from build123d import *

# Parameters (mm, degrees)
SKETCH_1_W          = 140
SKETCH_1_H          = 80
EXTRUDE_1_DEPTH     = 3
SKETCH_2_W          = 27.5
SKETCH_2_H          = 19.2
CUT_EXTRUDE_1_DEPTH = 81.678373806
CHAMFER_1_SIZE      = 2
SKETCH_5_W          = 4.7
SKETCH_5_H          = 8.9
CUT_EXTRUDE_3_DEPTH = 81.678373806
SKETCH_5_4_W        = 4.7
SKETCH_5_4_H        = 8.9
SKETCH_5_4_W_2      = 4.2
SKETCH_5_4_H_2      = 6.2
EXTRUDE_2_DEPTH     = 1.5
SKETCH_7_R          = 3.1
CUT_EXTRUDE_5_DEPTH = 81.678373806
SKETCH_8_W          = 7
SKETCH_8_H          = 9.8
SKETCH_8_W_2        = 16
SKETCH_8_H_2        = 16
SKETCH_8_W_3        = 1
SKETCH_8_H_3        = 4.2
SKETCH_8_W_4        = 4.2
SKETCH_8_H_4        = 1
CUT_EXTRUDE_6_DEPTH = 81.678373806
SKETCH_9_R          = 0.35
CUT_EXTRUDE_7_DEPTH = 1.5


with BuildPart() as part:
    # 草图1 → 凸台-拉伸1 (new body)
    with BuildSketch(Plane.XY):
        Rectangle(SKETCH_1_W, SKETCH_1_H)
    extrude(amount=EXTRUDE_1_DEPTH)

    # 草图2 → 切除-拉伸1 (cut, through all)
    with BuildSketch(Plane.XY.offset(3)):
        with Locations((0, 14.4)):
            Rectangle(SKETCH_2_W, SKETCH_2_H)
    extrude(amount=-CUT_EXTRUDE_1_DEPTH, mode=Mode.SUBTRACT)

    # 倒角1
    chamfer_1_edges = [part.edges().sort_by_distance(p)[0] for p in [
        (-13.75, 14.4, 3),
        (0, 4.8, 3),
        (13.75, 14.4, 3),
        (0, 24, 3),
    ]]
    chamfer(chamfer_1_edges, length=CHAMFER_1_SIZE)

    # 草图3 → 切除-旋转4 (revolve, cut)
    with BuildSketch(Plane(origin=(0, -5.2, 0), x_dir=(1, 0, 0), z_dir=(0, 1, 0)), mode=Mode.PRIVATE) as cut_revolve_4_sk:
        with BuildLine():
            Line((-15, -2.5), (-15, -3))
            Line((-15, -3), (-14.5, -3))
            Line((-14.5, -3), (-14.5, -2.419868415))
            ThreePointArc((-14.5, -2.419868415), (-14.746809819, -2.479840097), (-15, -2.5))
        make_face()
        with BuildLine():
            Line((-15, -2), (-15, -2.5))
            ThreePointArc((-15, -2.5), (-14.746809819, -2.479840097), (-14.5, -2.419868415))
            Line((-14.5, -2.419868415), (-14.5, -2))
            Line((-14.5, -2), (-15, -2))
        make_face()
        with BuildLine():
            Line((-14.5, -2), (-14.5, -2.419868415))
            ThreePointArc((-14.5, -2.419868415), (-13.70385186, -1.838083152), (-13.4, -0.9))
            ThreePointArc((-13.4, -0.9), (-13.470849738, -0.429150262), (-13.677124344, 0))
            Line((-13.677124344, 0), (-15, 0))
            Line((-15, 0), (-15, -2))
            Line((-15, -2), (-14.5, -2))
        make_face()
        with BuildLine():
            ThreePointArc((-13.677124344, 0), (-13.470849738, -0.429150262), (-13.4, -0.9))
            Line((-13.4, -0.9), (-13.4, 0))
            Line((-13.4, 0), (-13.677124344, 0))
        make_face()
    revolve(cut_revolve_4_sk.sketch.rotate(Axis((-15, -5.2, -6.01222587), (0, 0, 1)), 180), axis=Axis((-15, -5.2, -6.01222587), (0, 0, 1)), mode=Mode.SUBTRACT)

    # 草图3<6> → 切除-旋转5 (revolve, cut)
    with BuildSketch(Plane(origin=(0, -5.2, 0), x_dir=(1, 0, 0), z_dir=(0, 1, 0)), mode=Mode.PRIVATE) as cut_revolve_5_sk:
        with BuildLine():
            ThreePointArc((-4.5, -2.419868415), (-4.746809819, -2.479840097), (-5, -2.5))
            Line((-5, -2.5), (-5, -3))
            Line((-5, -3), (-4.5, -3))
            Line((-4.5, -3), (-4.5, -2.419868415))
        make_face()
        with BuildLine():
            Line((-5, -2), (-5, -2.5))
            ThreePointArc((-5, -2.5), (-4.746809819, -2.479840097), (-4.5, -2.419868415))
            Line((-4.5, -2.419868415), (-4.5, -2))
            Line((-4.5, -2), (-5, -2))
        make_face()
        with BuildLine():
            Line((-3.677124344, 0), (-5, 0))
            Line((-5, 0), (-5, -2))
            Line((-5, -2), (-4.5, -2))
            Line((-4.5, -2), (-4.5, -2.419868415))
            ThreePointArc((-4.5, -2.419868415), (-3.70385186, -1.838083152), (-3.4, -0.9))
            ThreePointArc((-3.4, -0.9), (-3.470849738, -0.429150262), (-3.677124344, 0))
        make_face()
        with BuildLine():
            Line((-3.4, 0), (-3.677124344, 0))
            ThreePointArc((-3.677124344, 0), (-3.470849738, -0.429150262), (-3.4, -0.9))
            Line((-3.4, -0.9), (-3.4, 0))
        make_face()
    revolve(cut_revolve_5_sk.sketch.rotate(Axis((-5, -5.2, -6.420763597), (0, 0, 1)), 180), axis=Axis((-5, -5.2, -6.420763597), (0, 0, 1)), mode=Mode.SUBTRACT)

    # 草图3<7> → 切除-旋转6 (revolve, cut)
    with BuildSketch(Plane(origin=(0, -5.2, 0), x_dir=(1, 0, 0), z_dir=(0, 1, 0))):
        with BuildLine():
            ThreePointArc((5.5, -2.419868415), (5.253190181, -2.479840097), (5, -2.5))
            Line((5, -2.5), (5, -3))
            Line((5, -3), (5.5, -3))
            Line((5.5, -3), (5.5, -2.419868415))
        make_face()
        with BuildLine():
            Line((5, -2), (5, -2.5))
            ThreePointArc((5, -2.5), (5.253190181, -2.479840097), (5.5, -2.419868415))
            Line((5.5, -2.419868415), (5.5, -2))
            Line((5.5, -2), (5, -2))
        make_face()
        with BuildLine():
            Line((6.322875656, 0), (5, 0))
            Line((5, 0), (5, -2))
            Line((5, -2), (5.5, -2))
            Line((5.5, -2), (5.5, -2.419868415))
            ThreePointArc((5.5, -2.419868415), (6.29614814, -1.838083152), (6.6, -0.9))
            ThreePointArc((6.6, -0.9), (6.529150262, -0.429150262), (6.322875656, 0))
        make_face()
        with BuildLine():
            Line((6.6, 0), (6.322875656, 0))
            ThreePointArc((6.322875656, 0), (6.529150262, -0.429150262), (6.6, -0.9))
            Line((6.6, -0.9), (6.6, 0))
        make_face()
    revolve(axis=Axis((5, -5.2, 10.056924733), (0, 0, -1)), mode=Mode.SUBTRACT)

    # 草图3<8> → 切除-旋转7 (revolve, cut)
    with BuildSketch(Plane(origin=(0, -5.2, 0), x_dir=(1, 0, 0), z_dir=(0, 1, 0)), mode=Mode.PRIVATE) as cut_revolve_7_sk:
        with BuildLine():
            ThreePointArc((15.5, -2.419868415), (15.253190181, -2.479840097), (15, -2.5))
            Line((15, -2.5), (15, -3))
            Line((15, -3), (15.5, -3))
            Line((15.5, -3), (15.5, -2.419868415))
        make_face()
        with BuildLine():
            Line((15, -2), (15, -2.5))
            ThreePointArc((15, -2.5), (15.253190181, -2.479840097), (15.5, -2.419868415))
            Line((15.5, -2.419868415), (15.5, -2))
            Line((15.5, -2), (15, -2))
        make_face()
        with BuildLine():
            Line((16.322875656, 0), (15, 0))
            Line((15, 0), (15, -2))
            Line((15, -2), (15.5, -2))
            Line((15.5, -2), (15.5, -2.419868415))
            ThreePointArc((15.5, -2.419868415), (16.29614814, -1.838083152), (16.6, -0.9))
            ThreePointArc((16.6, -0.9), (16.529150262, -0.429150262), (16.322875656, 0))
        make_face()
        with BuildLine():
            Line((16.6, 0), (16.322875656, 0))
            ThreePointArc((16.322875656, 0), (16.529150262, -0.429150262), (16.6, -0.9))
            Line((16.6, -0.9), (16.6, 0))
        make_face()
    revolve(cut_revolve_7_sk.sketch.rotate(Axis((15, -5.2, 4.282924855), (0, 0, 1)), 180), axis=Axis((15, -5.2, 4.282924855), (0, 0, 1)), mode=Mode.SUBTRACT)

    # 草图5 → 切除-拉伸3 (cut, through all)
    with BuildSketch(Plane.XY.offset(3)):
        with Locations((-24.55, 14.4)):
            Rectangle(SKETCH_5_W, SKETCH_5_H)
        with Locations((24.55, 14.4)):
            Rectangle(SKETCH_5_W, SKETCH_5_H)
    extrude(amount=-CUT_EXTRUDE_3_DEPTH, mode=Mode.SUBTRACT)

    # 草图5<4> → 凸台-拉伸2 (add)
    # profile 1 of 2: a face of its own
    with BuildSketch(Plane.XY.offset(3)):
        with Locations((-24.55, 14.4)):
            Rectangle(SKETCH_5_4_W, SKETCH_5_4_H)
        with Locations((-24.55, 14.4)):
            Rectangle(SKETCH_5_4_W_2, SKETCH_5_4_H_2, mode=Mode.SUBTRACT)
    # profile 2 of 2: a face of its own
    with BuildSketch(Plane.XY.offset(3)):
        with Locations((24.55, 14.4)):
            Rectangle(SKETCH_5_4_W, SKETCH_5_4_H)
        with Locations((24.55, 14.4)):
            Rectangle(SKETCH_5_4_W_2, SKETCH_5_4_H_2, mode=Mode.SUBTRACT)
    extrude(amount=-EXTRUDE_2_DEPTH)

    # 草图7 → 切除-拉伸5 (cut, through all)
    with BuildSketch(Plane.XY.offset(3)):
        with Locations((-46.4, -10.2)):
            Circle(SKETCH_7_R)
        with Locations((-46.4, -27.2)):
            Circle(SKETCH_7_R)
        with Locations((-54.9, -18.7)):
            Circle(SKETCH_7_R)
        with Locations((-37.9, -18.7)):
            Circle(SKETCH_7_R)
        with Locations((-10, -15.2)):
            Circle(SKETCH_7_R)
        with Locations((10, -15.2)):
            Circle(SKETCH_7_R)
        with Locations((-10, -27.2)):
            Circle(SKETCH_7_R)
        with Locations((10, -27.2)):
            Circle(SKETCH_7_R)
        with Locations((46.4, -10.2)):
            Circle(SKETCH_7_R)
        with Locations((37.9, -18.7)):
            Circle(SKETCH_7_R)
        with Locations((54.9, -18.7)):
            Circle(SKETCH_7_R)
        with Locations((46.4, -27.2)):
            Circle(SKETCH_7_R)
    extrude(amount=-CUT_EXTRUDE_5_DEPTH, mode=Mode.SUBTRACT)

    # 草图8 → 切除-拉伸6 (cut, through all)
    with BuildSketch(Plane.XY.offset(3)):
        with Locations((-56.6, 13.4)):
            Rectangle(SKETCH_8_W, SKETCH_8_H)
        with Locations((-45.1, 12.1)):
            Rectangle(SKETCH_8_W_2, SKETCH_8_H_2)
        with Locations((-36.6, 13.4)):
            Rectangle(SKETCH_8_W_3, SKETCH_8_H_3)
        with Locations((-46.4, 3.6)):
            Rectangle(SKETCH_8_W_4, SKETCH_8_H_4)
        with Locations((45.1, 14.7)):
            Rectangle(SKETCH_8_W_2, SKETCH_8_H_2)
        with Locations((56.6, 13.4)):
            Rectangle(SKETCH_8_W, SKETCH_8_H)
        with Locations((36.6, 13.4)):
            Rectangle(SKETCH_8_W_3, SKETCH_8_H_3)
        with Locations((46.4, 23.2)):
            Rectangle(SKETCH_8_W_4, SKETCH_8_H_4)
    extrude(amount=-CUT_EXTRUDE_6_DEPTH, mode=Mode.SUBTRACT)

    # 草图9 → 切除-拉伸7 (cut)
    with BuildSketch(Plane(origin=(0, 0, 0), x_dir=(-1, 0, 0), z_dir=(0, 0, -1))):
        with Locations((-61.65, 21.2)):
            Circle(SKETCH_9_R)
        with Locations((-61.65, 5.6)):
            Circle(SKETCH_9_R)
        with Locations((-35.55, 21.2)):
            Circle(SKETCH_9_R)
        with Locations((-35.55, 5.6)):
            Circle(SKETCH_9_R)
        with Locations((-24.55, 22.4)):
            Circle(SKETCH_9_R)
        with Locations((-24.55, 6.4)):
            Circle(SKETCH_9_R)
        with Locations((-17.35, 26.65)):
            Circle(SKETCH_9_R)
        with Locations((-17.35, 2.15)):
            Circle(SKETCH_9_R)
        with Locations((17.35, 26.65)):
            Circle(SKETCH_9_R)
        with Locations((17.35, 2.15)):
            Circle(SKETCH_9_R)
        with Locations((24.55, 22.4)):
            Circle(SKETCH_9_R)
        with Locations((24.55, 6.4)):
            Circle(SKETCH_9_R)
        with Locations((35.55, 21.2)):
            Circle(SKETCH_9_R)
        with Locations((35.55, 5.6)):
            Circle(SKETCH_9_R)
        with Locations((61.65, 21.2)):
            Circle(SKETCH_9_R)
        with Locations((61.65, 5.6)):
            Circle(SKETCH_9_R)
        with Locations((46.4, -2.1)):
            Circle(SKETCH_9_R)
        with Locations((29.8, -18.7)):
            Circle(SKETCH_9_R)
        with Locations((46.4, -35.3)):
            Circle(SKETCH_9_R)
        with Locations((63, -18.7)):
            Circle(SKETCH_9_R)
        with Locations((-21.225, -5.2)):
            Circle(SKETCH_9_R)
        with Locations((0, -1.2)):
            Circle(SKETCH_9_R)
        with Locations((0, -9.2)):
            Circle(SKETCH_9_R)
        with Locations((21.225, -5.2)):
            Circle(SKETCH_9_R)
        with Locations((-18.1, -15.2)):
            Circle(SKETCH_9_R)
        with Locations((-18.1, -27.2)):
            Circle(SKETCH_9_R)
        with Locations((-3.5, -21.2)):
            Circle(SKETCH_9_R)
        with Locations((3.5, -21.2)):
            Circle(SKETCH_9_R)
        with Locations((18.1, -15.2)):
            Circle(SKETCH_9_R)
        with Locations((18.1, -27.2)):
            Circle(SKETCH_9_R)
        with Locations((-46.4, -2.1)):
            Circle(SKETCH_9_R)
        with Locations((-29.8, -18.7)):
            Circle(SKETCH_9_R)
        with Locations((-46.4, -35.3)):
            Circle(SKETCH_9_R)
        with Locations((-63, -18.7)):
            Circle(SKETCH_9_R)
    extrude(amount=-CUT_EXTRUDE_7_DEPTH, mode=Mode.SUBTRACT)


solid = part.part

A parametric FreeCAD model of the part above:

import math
import FreeCAD as App
import Part
import Sketcher


def edges_at(feature, points):
    """Names of the edges that pass closest to the given points."""
    edges = feature.Shape.Edges
    near = lambda p: min(range(len(edges)), key=lambda i: edges[i].distToShape(Part.Vertex(*p))[0])
    return sorted({f"Edge{near(p) + 1}" for p in points})


def add_polygon(sketch, points):
    """Adds a closed chain of lines whose ends are joined by coincident constraints."""
    first, n = sketch.GeometryCount, len(points)
    for a, b in zip(points, points[1:] + points[:1]):
        sketch.addGeometry(Part.LineSegment(App.Vector(*a, 0), App.Vector(*b, 0)), False)
    for i in range(n):
        sketch.addConstraint(Sketcher.Constraint("Coincident", first + i, 2, first + (i + 1) % n, 1))

doc = App.newDocument("Part")
params = doc.addObject("Spreadsheet::Sheet", "Params")
for row, (alias, value) in enumerate([
    ("sketch1_width", "140 mm"),
    ("sketch1_height", "80 mm"),
    ("pad1_length", "3 mm"),
    ("sketch2_width", "27.5 mm"),
    ("sketch2_height", "19.2 mm"),
    ("chamfer_size", "2 mm"),
    ("sketch3_radius", "1.6 mm"),
    ("sketch3_height", "3 mm"),
    ("sketch3_width", "0.5 mm"),
    ("sketch3_height2", "0.9 mm"),
    ("groove_angle", "360 deg"),
    ("sketch4_radius", "1.6 mm"),
    ("sketch4_height", "3 mm"),
    ("sketch4_width", "0.5 mm"),
    ("sketch4_height2", "0.9 mm"),
    ("groove2_angle", "360 deg"),
    ("sketch5_radius", "1.6 mm"),
    ("sketch5_height", "3 mm"),
    ("sketch5_width", "0.5 mm"),
    ("sketch5_height2", "0.9 mm"),
    ("groove3_angle", "360 deg"),
    ("sketch6_radius", "1.6 mm"),
    ("sketch6_height", "3 mm"),
    ("sketch6_width", "0.5 mm"),
    ("sketch6_height2", "0.9 mm"),
    ("groove4_angle", "360 deg"),
    ("sketch7_width", "4.7 mm"),
    ("sketch7_height", "8.9 mm"),
    ("sketch8_width", "4.7 mm"),
    ("sketch8_width2", "4.2 mm"),
    ("sketch8_height", "8.9 mm"),
    ("sketch8_height2", "6.2 mm"),
    ("pad2_length", "1.5 mm"),
    ("sketch9_diameter", "6.2 mm"),
    ("sketch10_width", "7 mm"),
    ("sketch10_width2", "1 mm"),
    ("sketch10_width3", "16 mm"),
    ("sketch10_width4", "4.6 mm"),
    ("sketch10_width5", "4.2 mm"),
    ("sketch11_diameter", "0.7 mm"),
    ("pocket5_length", "1.5 mm"),
], start=1):
    params.set(f"A{row}", alias)
    params.set(f"B{row}", "=" + value)
    params.setAlias(f"B{row}", alias)

body = doc.addObject("PartDesign::Body", "Body")

# Sketch on XY plane
sketch1 = body.newObject("Sketcher::SketchObject", "Sketch")
sketch1.AttachmentSupport = (doc.getObject("XY_Plane"), [""])
sketch1.MapMode = "FlatFace"
add_polygon(sketch1, [(-70, 40), (-70, -40), (70, -40), (70, 40)])  # lines 0-3
sketch1.addConstraint([
    Sketcher.Constraint("Vertical", 0),
    Sketcher.Constraint("Horizontal", 1),
    Sketcher.Constraint("Vertical", 2),
    Sketcher.Constraint("Horizontal", 3),
    Sketcher.Constraint("Symmetric", 0, 2, 2, 2, -1, 1),
    Sketcher.Constraint("DistanceX", 1, 1, 1, 2, 140.0),
    Sketcher.Constraint("DistanceY", 0, 2, 0, 1, 80.0),
])
sketch1.setExpression("Constraints[9]", "Params.sketch1_width")
sketch1.setExpression("Constraints[10]", "Params.sketch1_height")
pad1 = body.newObject("PartDesign::Pad", "Pad")
pad1.Profile = sketch1
pad1.setExpression("Length", "Params.pad1_length")

# Sketch on XY plane
sketch2 = body.newObject("Sketcher::SketchObject", "Sketch001")
sketch2.AttachmentSupport = (doc.getObject("XY_Plane"), [""])
sketch2.MapMode = "FlatFace"
sketch2.AttachmentOffset = App.Placement(App.Vector(0, 0, 3), App.Rotation())
add_polygon(sketch2, [(-14, 24), (-14, 5), (14, 5), (14, 24)])  # lines 0-3
sketch2.addConstraint([
    Sketcher.Constraint("Vertical", 0),
    Sketcher.Constraint("Horizontal", 1),
    Sketcher.Constraint("Vertical", 2),
    Sketcher.Constraint("Horizontal", 3),
    Sketcher.Constraint("DistanceX", 1, 1, 1, 2, 27.5),
    Sketcher.Constraint("DistanceY", 0, 2, 0, 1, 19.2),
    Sketcher.Constraint("DistanceY", -1, 1, 2, 2, 24.0),
    Sketcher.Constraint("DistanceX", 0, 2, -1, 1, 13.75),
])
sketch2.setExpression("Constraints[8]", "Params.sketch2_width")
sketch2.setExpression("Constraints[9]", "Params.sketch2_height")
pocket1 = body.newObject("PartDesign::Pocket", "Pocket")
pocket1.Profile = sketch2
pocket1.Type = "ThroughAll"
doc.recompute()

chamfer = body.newObject("PartDesign::Chamfer", "Chamfer")
chamfer.Base = (pocket1, edges_at(pocket1, [
    (-13.75, 14.4, 3),
    (0, 4.8, 3),
    (13.75, 14.4, 3),
    (0, 24, 3),
]))
chamfer.setExpression("Size", "Params.chamfer_size")

# Sketch on XZ plane
sketch3 = body.newObject("Sketcher::SketchObject", "Sketch002")
sketch3.AttachmentSupport = (doc.getObject("XZ_Plane"), [""])
sketch3.MapMode = "FlatFace"
sketch3.AttachmentOffset = App.Placement(App.Vector(0, 0, 5.2), App.Rotation())
sketch3.addGeometry([
    Part.LineSegment(App.Vector(-15, 3, 0), App.Vector(-14.5, 3, 0)),  # 0
    Part.LineSegment(App.Vector(-14.5, 3, 0), App.Vector(-14.5, 2.4, 0)),  # 1
    Part.ArcOfCircle(Part.Circle(App.Vector(-15, 0.9, 0), App.Vector(0, 0, 1), 1.6), math.radians(0), math.radians(72)),  # 2
    Part.LineSegment(App.Vector(-13.4, 0.9, 0), App.Vector(-13.4, 0, 0)),  # 3
    Part.LineSegment(App.Vector(-13.4, 0, 0), App.Vector(-15, 0, 0)),  # 4
    Part.LineSegment(App.Vector(-15, 0, 0), App.Vector(-15, 3, 0)),  # 5
], False)
sketch3.addGeometry(Part.LineSegment(App.Vector(-15, 0, 0), App.Vector(-15, 3, 0)), True)  # axis
sketch3.addConstraint([
    Sketcher.Constraint("Coincident", 0, 2, 1, 1),
    Sketcher.Constraint("Coincident", 1, 2, 2, 2),
    Sketcher.Constraint("Tangent", 2, 1, 3, 1),
    Sketcher.Constraint("Coincident", 3, 2, 4, 1),
    Sketcher.Constraint("Coincident", 4, 2, 5, 1),
    Sketcher.Constraint("Coincident", 5, 2, 0, 1),
    Sketcher.Constraint("Horizontal", 0),
    Sketcher.Constraint("Vertical", 1),
    Sketcher.Constraint("Vertical", 3),
    Sketcher.Constraint("Horizontal", 4),
    Sketcher.Constraint("Vertical", 5),
    Sketcher.Constraint("Vertical", 6),
    Sketcher.Constraint("Coincident", 6, 1, 4, 2),
    Sketcher.Constraint("PointOnObject", 3, 2, -1),
    Sketcher.Constraint("Horizontal", 0, 2, 6, 2),
    Sketcher.Constraint("Vertical", 2, 3, 4, 2),
    Sketcher.Constraint("Radius", 2, 1.6),
    Sketcher.Constraint("DistanceY", 5, 1, 5, 2, 3.0),
    Sketcher.Constraint("DistanceX", 0, 1, 0, 2, 0.5),
    Sketcher.Constraint("DistanceY", 3, 2, 3, 1, 0.9),
    Sketcher.Constraint("DistanceX", 2, 3, -1, 1, 15.0),
])
sketch3.setExpression("Constraints[16]", "Params.sketch3_radius")
sketch3.setExpression("Constraints[17]", "Params.sketch3_height")
sketch3.setExpression("Constraints[18]", "Params.sketch3_width")
sketch3.setExpression("Constraints[19]", "Params.sketch3_height2")
groove = body.newObject("PartDesign::Groove", "Groove")
groove.Profile = sketch3
groove.ReferenceAxis = (sketch3, ["Axis0"])
groove.setExpression("Angle", "Params.groove_angle")

# Sketch on XZ plane
sketch4 = body.newObject("Sketcher::SketchObject", "Sketch003")
sketch4.AttachmentSupport = (doc.getObject("XZ_Plane"), [""])
sketch4.MapMode = "FlatFace"
sketch4.AttachmentOffset = App.Placement(App.Vector(0, 0, 5.2), App.Rotation())
sketch4.addGeometry([
    Part.LineSegment(App.Vector(-5, 3, 0), App.Vector(-4.5, 3, 0)),  # 0
    Part.LineSegment(App.Vector(-4.5, 3, 0), App.Vector(-4.5, 2.4, 0)),  # 1
    Part.ArcOfCircle(Part.Circle(App.Vector(-5, 0.9, 0), App.Vector(0, 0, 1), 1.6), math.radians(0), math.radians(72)),  # 2
    Part.LineSegment(App.Vector(-3.4, 0.9, 0), App.Vector(-3.4, 0, 0)),  # 3
    Part.LineSegment(App.Vector(-3.4, 0, 0), App.Vector(-5, 0, 0)),  # 4
    Part.LineSegment(App.Vector(-5, 0, 0), App.Vector(-5, 3, 0)),  # 5
], False)
sketch4.addGeometry(Part.LineSegment(App.Vector(-5, 0, 0), App.Vector(-5, 3, 0)), True)  # axis
sketch4.addConstraint([
    Sketcher.Constraint("Coincident", 0, 2, 1, 1),
    Sketcher.Constraint("Coincident", 1, 2, 2, 2),
    Sketcher.Constraint("Tangent", 2, 1, 3, 1),
    Sketcher.Constraint("Coincident", 3, 2, 4, 1),
    Sketcher.Constraint("Coincident", 4, 2, 5, 1),
    Sketcher.Constraint("Coincident", 5, 2, 0, 1),
    Sketcher.Constraint("Horizontal", 0),
    Sketcher.Constraint("Vertical", 1),
    Sketcher.Constraint("Vertical", 3),
    Sketcher.Constraint("Horizontal", 4),
    Sketcher.Constraint("Vertical", 5),
    Sketcher.Constraint("Vertical", 6),
    Sketcher.Constraint("Coincident", 6, 1, 4, 2),
    Sketcher.Constraint("PointOnObject", 3, 2, -1),
    Sketcher.Constraint("Horizontal", 0, 2, 6, 2),
    Sketcher.Constraint("Vertical", 2, 3, 4, 2),
    Sketcher.Constraint("Radius", 2, 1.6),
    Sketcher.Constraint("DistanceY", 5, 1, 5, 2, 3.0),
    Sketcher.Constraint("DistanceX", 0, 1, 0, 2, 0.5),
    Sketcher.Constraint("DistanceY", 3, 2, 3, 1, 0.9),
    Sketcher.Constraint("DistanceX", 2, 3, -1, 1, 5.0),
])
sketch4.setExpression("Constraints[16]", "Params.sketch4_radius")
sketch4.setExpression("Constraints[17]", "Params.sketch4_height")
sketch4.setExpression("Constraints[18]", "Params.sketch4_width")
sketch4.setExpression("Constraints[19]", "Params.sketch4_height2")
groove2 = body.newObject("PartDesign::Groove", "Groove001")
groove2.Profile = sketch4
groove2.ReferenceAxis = (sketch4, ["Axis0"])
groove2.setExpression("Angle", "Params.groove2_angle")

# Sketch on XZ plane
sketch5 = body.newObject("Sketcher::SketchObject", "Sketch004")
sketch5.AttachmentSupport = (doc.getObject("XZ_Plane"), [""])
sketch5.MapMode = "FlatFace"
sketch5.AttachmentOffset = App.Placement(App.Vector(0, 0, 5.2), App.Rotation())
sketch5.addGeometry([
    Part.LineSegment(App.Vector(5, 3, 0), App.Vector(5.5, 3, 0)),  # 0
    Part.LineSegment(App.Vector(5.5, 3, 0), App.Vector(5.5, 2.4, 0)),  # 1
    Part.ArcOfCircle(Part.Circle(App.Vector(5, 0.9, 0), App.Vector(0, 0, 1), 1.6), math.radians(0), math.radians(72)),  # 2
    Part.LineSegment(App.Vector(6.6, 0.9, 0), App.Vector(6.6, 0, 0)),  # 3
    Part.LineSegment(App.Vector(6.6, 0, 0), App.Vector(5, 0, 0)),  # 4
    Part.LineSegment(App.Vector(5, 0, 0), App.Vector(5, 3, 0)),  # 5
], False)
sketch5.addGeometry(Part.LineSegment(App.Vector(5, 3, 0), App.Vector(5, 0, 0)), True)  # axis
sketch5.addConstraint([
    Sketcher.Constraint("Coincident", 0, 2, 1, 1),
    Sketcher.Constraint("Coincident", 1, 2, 2, 2),
    Sketcher.Constraint("Tangent", 2, 1, 3, 1),
    Sketcher.Constraint("Coincident", 3, 2, 4, 1),
    Sketcher.Constraint("Coincident", 4, 2, 5, 1),
    Sketcher.Constraint("Coincident", 5, 2, 0, 1),
    Sketcher.Constraint("Horizontal", 0),
    Sketcher.Constraint("Vertical", 1),
    Sketcher.Constraint("Vertical", 3),
    Sketcher.Constraint("Horizontal", 4),
    Sketcher.Constraint("Vertical", 5),
    Sketcher.Constraint("Vertical", 6),
    Sketcher.Constraint("Coincident", 6, 1, 5, 2),
    Sketcher.Constraint("PointOnObject", 3, 2, -1),
    Sketcher.Constraint("PointOnObject", 6, 2, -1),
    Sketcher.Constraint("Vertical", 2, 3, 4, 2),
    Sketcher.Constraint("Radius", 2, 1.6),
    Sketcher.Constraint("DistanceY", 5, 1, 5, 2, 3.0),
    Sketcher.Constraint("DistanceX", 0, 1, 0, 2, 0.5),
    Sketcher.Constraint("DistanceY", 3, 2, 3, 1, 0.9),
    Sketcher.Constraint("DistanceX", -1, 1, 2, 3, 5.0),
])
sketch5.setExpression("Constraints[16]", "Params.sketch5_radius")
sketch5.setExpression("Constraints[17]", "Params.sketch5_height")
sketch5.setExpression("Constraints[18]", "Params.sketch5_width")
sketch5.setExpression("Constraints[19]", "Params.sketch5_height2")
groove3 = body.newObject("PartDesign::Groove", "Groove002")
groove3.Profile = sketch5
groove3.ReferenceAxis = (sketch5, ["Axis0"])
groove3.setExpression("Angle", "Params.groove3_angle")

# Sketch on XZ plane
sketch6 = body.newObject("Sketcher::SketchObject", "Sketch005")
sketch6.AttachmentSupport = (doc.getObject("XZ_Plane"), [""])
sketch6.MapMode = "FlatFace"
sketch6.AttachmentOffset = App.Placement(App.Vector(0, 0, 5.2), App.Rotation())
sketch6.addGeometry([
    Part.LineSegment(App.Vector(15, 3, 0), App.Vector(15.5, 3, 0)),  # 0
    Part.LineSegment(App.Vector(15.5, 3, 0), App.Vector(15.5, 2.4, 0)),  # 1
    Part.ArcOfCircle(Part.Circle(App.Vector(15, 0.9, 0), App.Vector(0, 0, 1), 1.6), math.radians(0), math.radians(72)),  # 2
    Part.LineSegment(App.Vector(16.6, 0.9, 0), App.Vector(16.6, 0, 0)),  # 3
    Part.LineSegment(App.Vector(16.6, 0, 0), App.Vector(15, 0, 0)),  # 4
    Part.LineSegment(App.Vector(15, 0, 0), App.Vector(15, 3, 0)),  # 5
], False)
sketch6.addGeometry(Part.LineSegment(App.Vector(15, 0, 0), App.Vector(15, 3, 0)), True)  # axis
sketch6.addConstraint([
    Sketcher.Constraint("Coincident", 0, 2, 1, 1),
    Sketcher.Constraint("Coincident", 1, 2, 2, 2),
    Sketcher.Constraint("Tangent", 2, 1, 3, 1),
    Sketcher.Constraint("Coincident", 3, 2, 4, 1),
    Sketcher.Constraint("Coincident", 4, 2, 5, 1),
    Sketcher.Constraint("Coincident", 5, 2, 0, 1),
    Sketcher.Constraint("Horizontal", 0),
    Sketcher.Constraint("Vertical", 1),
    Sketcher.Constraint("Vertical", 3),
    Sketcher.Constraint("Horizontal", 4),
    Sketcher.Constraint("Vertical", 5),
    Sketcher.Constraint("Vertical", 6),
    Sketcher.Constraint("Coincident", 6, 1, 4, 2),
    Sketcher.Constraint("PointOnObject", 3, 2, -1),
    Sketcher.Constraint("Horizontal", 0, 2, 6, 2),
    Sketcher.Constraint("Vertical", 2, 3, 4, 2),
    Sketcher.Constraint("Radius", 2, 1.6),
    Sketcher.Constraint("DistanceY", 5, 1, 5, 2, 3.0),
    Sketcher.Constraint("DistanceX", 0, 1, 0, 2, 0.5),
    Sketcher.Constraint("DistanceY", 3, 2, 3, 1, 0.9),
    Sketcher.Constraint("DistanceX", -1, 1, 2, 3, 15.0),
])
sketch6.setExpression("Constraints[16]", "Params.sketch6_radius")
sketch6.setExpression("Constraints[17]", "Params.sketch6_height")
sketch6.setExpression("Constraints[18]", "Params.sketch6_width")
sketch6.setExpression("Constraints[19]", "Params.sketch6_height2")
groove4 = body.newObject("PartDesign::Groove", "Groove003")
groove4.Profile = sketch6
groove4.ReferenceAxis = (sketch6, ["Axis0"])
groove4.setExpression("Angle", "Params.groove4_angle")

# Sketch on XY plane
sketch7 = body.newObject("Sketcher::SketchObject", "Sketch006")
sketch7.AttachmentSupport = (doc.getObject("XY_Plane"), [""])
sketch7.MapMode = "FlatFace"
sketch7.AttachmentOffset = App.Placement(App.Vector(0, 0, 3), App.Rotation())
add_polygon(sketch7, [(-26.9, 18.9), (-26.9, 9.9), (-22.2, 9.9), (-22.2, 18.9)])  # lines 0-3
add_polygon(sketch7, [(22.2, 18.9), (22.2, 9.9), (26.9, 9.9), (26.9, 18.9)])  # lines 4-7
sketch7.addConstraint([
    Sketcher.Constraint("Vertical", 0),
    Sketcher.Constraint("Horizontal", 1),
    Sketcher.Constraint("Vertical", 2),
    Sketcher.Constraint("Horizontal", 3),
    Sketcher.Constraint("Vertical", 4),
    Sketcher.Constraint("Horizontal", 5),
    Sketcher.Constraint("Vertical", 6),
    Sketcher.Constraint("Horizontal", 7),
    Sketcher.Constraint("Symmetric", 1, 2, 4, 2, -2),
    Sketcher.Constraint("Symmetric", 3, 2, 6, 2, -2),
    Sketcher.Constraint("DistanceX", 1, 1, 1, 2, 4.7),
    Sketcher.Constraint("DistanceY", 0, 2, 0, 1, 8.9),
    Sketcher.Constraint("DistanceX", 0, 2, -1, 1, 26.9),
    Sketcher.Constraint("DistanceY", -1, 1, 0, 2, 9.95),
])
sketch7.setExpression("Constraints[18]", "Params.sketch7_width")
sketch7.setExpression("Constraints[19]", "Params.sketch7_height")
pocket2 = body.newObject("PartDesign::Pocket", "Pocket001")
pocket2.Profile = sketch7
pocket2.Type = "ThroughAll"

# Sketch on XY plane
sketch8 = body.newObject("Sketcher::SketchObject", "Sketch007")
sketch8.AttachmentSupport = (doc.getObject("XY_Plane"), [""])
sketch8.MapMode = "FlatFace"
sketch8.AttachmentOffset = App.Placement(App.Vector(0, 0, 3), App.Rotation())
add_polygon(sketch8, [(-26.9, 18.9), (-26.9, 9.9), (-22.2, 9.9), (-22.2, 18.9)])  # lines 0-3
add_polygon(sketch8, [(-22.4, 11.3), (-26.6, 11.3), (-26.6, 17.5), (-22.4, 17.5)])  # lines 4-7
add_polygon(sketch8, [(22.2, 18.9), (22.2, 9.9), (26.9, 9.9), (26.9, 18.9)])  # lines 8-11
add_polygon(sketch8, [(26.6, 11.3), (22.4, 11.3), (22.4, 17.5), (26.6, 17.5)])  # lines 12-15
sketch8.addConstraint([
    Sketcher.Constraint("Vertical", 0),
    Sketcher.Constraint("Horizontal", 1),
    Sketcher.Constraint("Vertical", 2),
    Sketcher.Constraint("Horizontal", 3),
    Sketcher.Constraint("Horizontal", 4),
    Sketcher.Constraint("Vertical", 5),
    Sketcher.Constraint("Horizontal", 6),
    Sketcher.Constraint("Vertical", 7),
    Sketcher.Constraint("Vertical", 8),
    Sketcher.Constraint("Horizontal", 9),
    Sketcher.Constraint("Vertical", 10),
    Sketcher.Constraint("Horizontal", 11),
    Sketcher.Constraint("Horizontal", 12),
    Sketcher.Constraint("Vertical", 13),
    Sketcher.Constraint("Horizontal", 14),
    Sketcher.Constraint("Vertical", 15),
    Sketcher.Constraint("Symmetric", 1, 2, 8, 2, -2),
    Sketcher.Constraint("Symmetric", 3, 2, 10, 2, -2),
    Sketcher.Constraint("Symmetric", 7, 2, 12, 2, -2),
    Sketcher.Constraint("Symmetric", 5, 2, 14, 2, -2),
    Sketcher.Constraint("DistanceX", 1, 1, 1, 2, 4.7),
    Sketcher.Constraint("DistanceX", 4, 2, 4, 1, 4.2),
    Sketcher.Constraint("DistanceY", 0, 2, 0, 1, 8.9),
    Sketcher.Constraint("DistanceY", 5, 1, 5, 2, 6.2),
    Sketcher.Constraint("DistanceX", 0, 2, -1, 1, 26.9),
    Sketcher.Constraint("DistanceY", -1, 1, 4, 2, 11.3),
    Sketcher.Constraint("DistanceY", -1, 1, 0, 2, 9.95),
    Sketcher.Constraint("DistanceX", 4, 2, -1, 1, 26.65),
])
sketch8.setExpression("Constraints[36]", "Params.sketch8_width")
sketch8.setExpression("Constraints[37]", "Params.sketch8_width2")
sketch8.setExpression("Constraints[38]", "Params.sketch8_height")
sketch8.setExpression("Constraints[39]", "Params.sketch8_height2")
pad2 = body.newObject("PartDesign::Pad", "Pad001")
pad2.Profile = sketch8
pad2.setExpression("Length", "Params.pad2_length")
pad2.Reversed = True

# Sketch on XY plane
sketch9 = body.newObject("Sketcher::SketchObject", "Sketch008")
sketch9.AttachmentSupport = (doc.getObject("XY_Plane"), [""])
sketch9.MapMode = "FlatFace"
sketch9.AttachmentOffset = App.Placement(App.Vector(0, 0, 3), App.Rotation())
sketch9.addGeometry([
    Part.Circle(App.Vector(-46.4, -10.2, 0), App.Vector(0, 0, 1), 3.1),  # 0
    Part.Circle(App.Vector(-46.4, -27.2, 0), App.Vector(0, 0, 1), 3.1),  # 1
    Part.Circle(App.Vector(-54.9, -18.7, 0), App.Vector(0, 0, 1), 3.1),  # 2
    Part.Circle(App.Vector(-37.9, -18.7, 0), App.Vector(0, 0, 1), 3.1),  # 3
    Part.Circle(App.Vector(-10, -15.2, 0), App.Vector(0, 0, 1), 3.1),  # 4
    Part.Circle(App.Vector(10, -15.2, 0), App.Vector(0, 0, 1), 3.1),  # 5
    Part.Circle(App.Vector(-10, -27.2, 0), App.Vector(0, 0, 1), 3.1),  # 6
    Part.Circle(App.Vector(10, -27.2, 0), App.Vector(0, 0, 1), 3.1),  # 7
    Part.Circle(App.Vector(46.4, -10.2, 0), App.Vector(0, 0, 1), 3.1),  # 8
    Part.Circle(App.Vector(37.9, -18.7, 0), App.Vector(0, 0, 1), 3.1),  # 9
    Part.Circle(App.Vector(54.9, -18.7, 0), App.Vector(0, 0, 1), 3.1),  # 10
    Part.Circle(App.Vector(46.4, -27.2, 0), App.Vector(0, 0, 1), 3.1),  # 11
], False)
sketch9.addConstraint([
    Sketcher.Constraint("Equal", 0, 1),
    Sketcher.Constraint("Equal", 1, 2),
    Sketcher.Constraint("Equal", 2, 3),
    Sketcher.Constraint("Equal", 3, 4),
    Sketcher.Constraint("Equal", 4, 5),
    Sketcher.Constraint("Equal", 5, 6),
    Sketcher.Constraint("Equal", 6, 7),
    Sketcher.Constraint("Equal", 7, 8),
    Sketcher.Constraint("Equal", 8, 9),
    Sketcher.Constraint("Equal", 9, 10),
    Sketcher.Constraint("Equal", 10, 11),
    Sketcher.Constraint("Symmetric", 4, 3, 5, 3, -2),
    Sketcher.Constraint("Symmetric", 6, 3, 7, 3, -2),
    Sketcher.Constraint("Symmetric", 0, 3, 8, 3, -2),
    Sketcher.Constraint("Symmetric", 3, 3, 9, 3, -2),
    Sketcher.Constraint("Symmetric", 2, 3, 10, 3, -2),
    Sketcher.Constraint("Symmetric", 1, 3, 11, 3, -2),
    Sketcher.Constraint("Horizontal", 2, 3, 3, 3),
    Sketcher.Constraint("Horizontal", 1, 3, 6, 3),
    Sketcher.Constraint("Vertical", 0, 3, 1, 3),
    Sketcher.Constraint("Vertical", 4, 3, 6, 3),
    Sketcher.Constraint("Diameter", 0, 6.2),
    Sketcher.Constraint("DistanceX", 4, 3, -1, 1, 10.0),
    Sketcher.Constraint("DistanceY", 1, 3, 0, 3, 17.0),
    Sketcher.Constraint("DistanceX", 2, 3, 3, 3, 17.0),
    Sketcher.Constraint("DistanceY", 4, 3, 0, 3, 5.0),
    Sketcher.Constraint("DistanceX", 0, 3, -1, 1, 46.4),
    Sketcher.Constraint("DistanceY", 0, 3, -1, 1, 10.2),
    Sketcher.Constraint("DistanceX", 2, 3, -1, 1, 54.9),
    Sketcher.Constraint("DistanceY", 2, 3, -1, 1, 18.7),
])
sketch9.setExpression("Constraints[21]", "Params.sketch9_diameter")
pocket3 = body.newObject("PartDesign::Pocket", "Pocket002")
pocket3.Profile = sketch9
pocket3.Type = "ThroughAll"

# Sketch on XY plane
sketch10 = body.newObject("Sketcher::SketchObject", "Sketch009")
sketch10.AttachmentSupport = (doc.getObject("XY_Plane"), [""])
sketch10.MapMode = "FlatFace"
sketch10.AttachmentOffset = App.Placement(App.Vector(0, 0, 3), App.Rotation())
add_polygon(sketch10, [(-60.1, 18.3), (-60.1, 8.5), (-53.1, 8.5), (-53.1, 4.1), (-48.5, 4.1), (-48.5, 3.1), (-44.3, 3.1), (-44.3, 4.1), (-37.1, 4.1), (-37.1, 11.3), (-36.1, 11.3), (-36.1, 15.5), (-37.1, 15.5), (-37.1, 20.1), (-53.1, 20.1), (-53.1, 18.3)])  # lines 0-15
add_polygon(sketch10, [(37.1, 11.3), (37.1, 6.7), (53.1, 6.7), (53.1, 8.5), (60.1, 8.5), (60.1, 18.3), (53.1, 18.3), (53.1, 22.7), (48.5, 22.7), (48.5, 23.7), (44.3, 23.7), (44.3, 22.7), (37.1, 22.7), (37.1, 15.5), (36.1, 15.5), (36.1, 11.3)])  # lines 16-31
sketch10.addConstraint([
    Sketcher.Constraint("Vertical", 0),
    Sketcher.Constraint("Horizontal", 1),
    Sketcher.Constraint("Vertical", 2),
    Sketcher.Constraint("Horizontal", 3),
    Sketcher.Constraint("Vertical", 4),
    Sketcher.Constraint("Horizontal", 5),
    Sketcher.Constraint("Vertical", 6),
    Sketcher.Constraint("Horizontal", 7),
    Sketcher.Constraint("Vertical", 8),
    Sketcher.Constraint("Horizontal", 9),
    Sketcher.Constraint("Vertical", 10),
    Sketcher.Constraint("Horizontal", 11),
    Sketcher.Constraint("Vertical", 12),
    Sketcher.Constraint("Horizontal", 13),
    Sketcher.Constraint("Vertical", 14),
    Sketcher.Constraint("Horizontal", 15),
    Sketcher.Constraint("Vertical", 16),
    Sketcher.Constraint("Horizontal", 17),
    Sketcher.Constraint("Vertical", 18),
    Sketcher.Constraint("Horizontal", 19),
    Sketcher.Constraint("Vertical", 20),
    Sketcher.Constraint("Horizontal", 21),
    Sketcher.Constraint("Vertical", 22),
    Sketcher.Constraint("Horizontal", 23),
    Sketcher.Constraint("Vertical", 24),
    Sketcher.Constraint("Horizontal", 25),
    Sketcher.Constraint("Vertical", 26),
    Sketcher.Constraint("Horizontal", 27),
    Sketcher.Constraint("Vertical", 28),
    Sketcher.Constraint("Horizontal", 29),
    Sketcher.Constraint("Vertical", 30),
    Sketcher.Constraint("Horizontal", 31),
    Sketcher.Constraint("Symmetric", 1, 2, 18, 2, -2),
    Sketcher.Constraint("Symmetric", 15, 2, 20, 2, -2),
    Sketcher.Constraint("Symmetric", 11, 2, 28, 2, -2),
    Sketcher.Constraint("Symmetric", 9, 2, 30, 2, -2),
    Sketcher.Constraint("Horizontal", 3, 2, 6, 2),
    Sketcher.Constraint("Horizontal", 23, 2, 26, 2),
    Sketcher.Constraint("Vertical", 8, 2, 11, 2),
    Sketcher.Constraint("Vertical", 2, 2, 13, 2),
    Sketcher.Constraint("Vertical", 18, 2, 21, 2),
    Sketcher.Constraint("Vertical", 16, 2, 27, 2),
    Sketcher.Constraint("Equal", 3, 23),
    Sketcher.Constraint("Equal", 5, 25),
    Sketcher.Constraint("Equal", 31, 4),
    Sketcher.Constraint("Equal", 27, 8),
    Sketcher.Constraint("Equal", 25, 10),
    Sketcher.Constraint("Equal", 23, 12),
    Sketcher.Constraint("Equal", 12, 16),
    Sketcher.Constraint("Equal", 14, 18),
    Sketcher.Constraint("Equal", 2, 22),
    Sketcher.Constraint("Equal", 6, 24),
    Sketcher.Constraint("DistanceX", 1, 1, 1, 2, 7.0),
    Sketcher.Constraint("DistanceX", 9, 1, 9, 2, 1.0),
    Sketcher.Constraint("DistanceX", 13, 2, 13, 1, 16.0),
    Sketcher.Constraint("DistanceX", 3, 1, 3, 2, 4.6),
    Sketcher.Constraint("DistanceX", 5, 1, 5, 2, 4.2),
    Sketcher.Constraint("DistanceY", 0, 2, 0, 1, 9.8),
    Sketcher.Constraint("DistanceX", 0, 2, -1, 1, 60.1),
    Sketcher.Constraint("DistanceY", -1, 1, 0, 2, 8.5),
])
sketch10.setExpression("Constraints[84]", "Params.sketch10_width")
sketch10.setExpression("Constraints[85]", "Params.sketch10_width2")
sketch10.setExpression("Constraints[86]", "Params.sketch10_width3")
sketch10.setExpression("Constraints[87]", "Params.sketch10_width4")
sketch10.setExpression("Constraints[88]", "Params.sketch10_width5")
pocket4 = body.newObject("PartDesign::Pocket", "Pocket003")
pocket4.Profile = sketch10
pocket4.Type = "ThroughAll"

# Sketch on XY plane
sketch11 = body.newObject("Sketcher::SketchObject", "Sketch010")
sketch11.AttachmentSupport = (doc.getObject("XY_Plane"), [""])
sketch11.MapMode = "FlatFace"
sketch11.addGeometry([
    Part.Circle(App.Vector(61.65, 21.2, 0), App.Vector(0, 0, 1), 0.35),  # 0
    Part.Circle(App.Vector(61.65, 5.6, 0), App.Vector(0, 0, 1), 0.35),  # 1
    Part.Circle(App.Vector(35.55, 21.2, 0), App.Vector(0, 0, 1), 0.35),  # 2
    Part.Circle(App.Vector(35.55, 5.6, 0), App.Vector(0, 0, 1), 0.35),  # 3
    Part.Circle(App.Vector(24.55, 22.4, 0), App.Vector(0, 0, 1), 0.35),  # 4
    Part.Circle(App.Vector(24.55, 6.4, 0), App.Vector(0, 0, 1), 0.35),  # 5
    Part.Circle(App.Vector(17.35, 26.65, 0), App.Vector(0, 0, 1), 0.35),  # 6
    Part.Circle(App.Vector(17.35, 2.15, 0), App.Vector(0, 0, 1), 0.35),  # 7
    Part.Circle(App.Vector(-17.35, 26.65, 0), App.Vector(0, 0, 1), 0.35),  # 8
    Part.Circle(App.Vector(-17.35, 2.15, 0), App.Vector(0, 0, 1), 0.35),  # 9
    Part.Circle(App.Vector(-24.55, 22.4, 0), App.Vector(0, 0, 1), 0.35),  # 10
    Part.Circle(App.Vector(-24.55, 6.4, 0), App.Vector(0, 0, 1), 0.35),  # 11
    Part.Circle(App.Vector(-35.55, 21.2, 0), App.Vector(0, 0, 1), 0.35),  # 12
    Part.Circle(App.Vector(-35.55, 5.6, 0), App.Vector(0, 0, 1), 0.35),  # 13
    Part.Circle(App.Vector(-61.65, 21.2, 0), App.Vector(0, 0, 1), 0.35),  # 14
    Part.Circle(App.Vector(-61.65, 5.6, 0), App.Vector(0, 0, 1), 0.35),  # 15
    Part.Circle(App.Vector(-46.4, -2.1, 0), App.Vector(0, 0, 1), 0.35),  # 16
    Part.Circle(App.Vector(-29.8, -18.7, 0), App.Vector(0, 0, 1), 0.35),  # 17
    Part.Circle(App.Vector(-46.4, -35.3, 0), App.Vector(0, 0, 1), 0.35),  # 18
    Part.Circle(App.Vector(-63, -18.7, 0), App.Vector(0, 0, 1), 0.35),  # 19
    Part.Circle(App.Vector(21.23, -5.2, 0), App.Vector(0, 0, 1), 0.35),  # 20
    Part.Circle(App.Vector(0, -1.2, 0), App.Vector(0, 0, 1), 0.35),  # 21
    Part.Circle(App.Vector(0, -9.2, 0), App.Vector(0, 0, 1), 0.35),  # 22
    Part.Circle(App.Vector(-21.23, -5.2, 0), App.Vector(0, 0, 1), 0.35),  # 23
    Part.Circle(App.Vector(18.1, -15.2, 0), App.Vector(0, 0, 1), 0.35),  # 24
    Part.Circle(App.Vector(18.1, -27.2, 0), App.Vector(0, 0, 1), 0.35),  # 25
    Part.Circle(App.Vector(3.5, -21.2, 0), App.Vector(0, 0, 1), 0.35),  # 26
    Part.Circle(App.Vector(-3.5, -21.2, 0), App.Vector(0, 0, 1), 0.35),  # 27
    Part.Circle(App.Vector(-18.1, -15.2, 0), App.Vector(0, 0, 1), 0.35),  # 28
    Part.Circle(App.Vector(-18.1, -27.2, 0), App.Vector(0, 0, 1), 0.35),  # 29
    Part.Circle(App.Vector(46.4, -2.1, 0), App.Vector(0, 0, 1), 0.35),  # 30
    Part.Circle(App.Vector(29.8, -18.7, 0), App.Vector(0, 0, 1), 0.35),  # 31
    Part.Circle(App.Vector(46.4, -35.3, 0), App.Vector(0, 0, 1), 0.35),  # 32
    Part.Circle(App.Vector(63, -18.7, 0), App.Vector(0, 0, 1), 0.35),  # 33
], False)
sketch11.addConstraint([
    Sketcher.Constraint("Equal", 0, 1),
    Sketcher.Constraint("Equal", 1, 2),
    Sketcher.Constraint("Equal", 2, 3),
    Sketcher.Constraint("Equal", 3, 4),
    Sketcher.Constraint("Equal", 4, 5),
    Sketcher.Constraint("Equal", 5, 6),
    Sketcher.Constraint("Equal", 6, 7),
    Sketcher.Constraint("Equal", 7, 8),
    Sketcher.Constraint("Equal", 8, 9),
    Sketcher.Constraint("Equal", 9, 10),
    Sketcher.Constraint("Equal", 10, 11),
    Sketcher.Constraint("Equal", 11, 12),
    Sketcher.Constraint("Equal", 12, 13),
    Sketcher.Constraint("Equal", 13, 14),
    Sketcher.Constraint("Equal", 14, 15),
    Sketcher.Constraint("Equal", 15, 16),
    Sketcher.Constraint("Equal", 16, 17),
    Sketcher.Constraint("Equal", 17, 18),
    Sketcher.Constraint("Equal", 18, 19),
    Sketcher.Constraint("Equal", 19, 20),
    Sketcher.Constraint("Equal", 20, 21),
    Sketcher.Constraint("Equal", 21, 22),
    Sketcher.Constraint("Equal", 22, 23),
    Sketcher.Constraint("Equal", 23, 24),
    Sketcher.Constraint("Equal", 24, 25),
    Sketcher.Constraint("Equal", 25, 26),
    Sketcher.Constraint("Equal", 26, 27),
    Sketcher.Constraint("Equal", 27, 28),
    Sketcher.Constraint("Equal", 28, 29),
    Sketcher.Constraint("Equal", 29, 30),
    Sketcher.Constraint("Equal", 30, 31),
    Sketcher.Constraint("Equal", 31, 32),
    Sketcher.Constraint("Equal", 32, 33),
    Sketcher.Constraint("Symmetric", 6, 3, 8, 3, -2),
    Sketcher.Constraint("Symmetric", 7, 3, 9, 3, -2),
    Sketcher.Constraint("Symmetric", 4, 3, 10, 3, -2),
    Sketcher.Constraint("Symmetric", 5, 3, 11, 3, -2),
    Sketcher.Constraint("Symmetric", 2, 3, 12, 3, -2),
    Sketcher.Constraint("Symmetric", 3, 3, 13, 3, -2),
    Sketcher.Constraint("Symmetric", 0, 3, 14, 3, -2),
    Sketcher.Constraint("Symmetric", 1, 3, 15, 3, -2),
    Sketcher.Constraint("Symmetric", 20, 3, 23, 3, -2),
    Sketcher.Constraint("Symmetric", 26, 3, 27, 3, -2),
    Sketcher.Constraint("Symmetric", 24, 3, 28, 3, -2),
    Sketcher.Constraint("Symmetric", 25, 3, 29, 3, -2),
    Sketcher.Constraint("Symmetric", 16, 3, 30, 3, -2),
    Sketcher.Constraint("Symmetric", 17, 3, 31, 3, -2),
    Sketcher.Constraint("Symmetric", 18, 3, 32, 3, -2),
    Sketcher.Constraint("Symmetric", 19, 3, 33, 3, -2),
    Sketcher.Constraint("PointOnObject", 21, 3, -2),
    Sketcher.Constraint("PointOnObject", 22, 3, -2),
    Sketcher.Constraint("Horizontal", 0, 3, 2, 3),
    Sketcher.Constraint("Horizontal", 1, 3, 3, 3),
    Sketcher.Constraint("Horizontal", 17, 3, 19, 3),
    Sketcher.Constraint("Vertical", 0, 3, 1, 3),
    Sketcher.Constraint("Vertical", 2, 3, 3, 3),
    Sketcher.Constraint("Vertical", 4, 3, 5, 3),
    Sketcher.Constraint("Vertical", 6, 3, 7, 3),
    Sketcher.Constraint("Vertical", 16, 3, 18, 3),
    Sketcher.Constraint("Vertical", 24, 3, 25, 3),
    Sketcher.Constraint("Diameter", 0, 0.7),
    Sketcher.Constraint("DistanceX", 19, 3, -1, 1, 63.0),
    Sketcher.Constraint("DistanceX", 4, 3, 2, 3, 11.0),
    Sketcher.Constraint("DistanceY", 5, 3, 4, 3, 16.0),
    Sketcher.Constraint("DistanceY", 20, 3, 21, 3, 4.0),
    Sketcher.Constraint("DistanceY", 22, 3, 21, 3, 8.0),
    Sketcher.Constraint("DistanceY", 24, 3, 20, 3, 10.0),
    Sketcher.Constraint("DistanceY", 25, 3, 24, 3, 12.0),
    Sketcher.Constraint("DistanceY", 26, 3, 22, 3, 12.0),
    Sketcher.Constraint("DistanceX", 27, 3, 26, 3, 7.0),
    Sketcher.Constraint("DistanceY", -1, 1, 0, 3, 21.2),
    Sketcher.Constraint("DistanceY", -1, 1, 1, 3, 5.6),
    Sketcher.Constraint("DistanceY", -1, 1, 4, 3, 22.4),
    Sketcher.Constraint("DistanceX", 16, 3, -1, 1, 46.4),
    Sketcher.Constraint("DistanceY", 16, 3, -1, 1, 2.1),
    Sketcher.Constraint("DistanceX", 17, 3, -1, 1, 29.8),
    Sketcher.Constraint("DistanceY", 17, 3, -1, 1, 18.7),
    Sketcher.Constraint("DistanceY", 18, 3, -1, 1, 35.3),
    Sketcher.Constraint("DistanceY", 20, 3, -1, 1, 5.2),
    Sketcher.Constraint("DistanceX", -1, 1, 24, 3, 18.1),
    Sketcher.Constraint("DistanceX", 2, 3, 0, 3, 26.1),
    Sketcher.Constraint("DistanceX", 6, 3, 4, 3, 7.2),
    Sketcher.Constraint("DistanceY", 7, 3, 6, 3, 24.5),
    Sketcher.Constraint("DistanceX", 8, 3, 6, 3, 34.7),
    Sketcher.Constraint("DistanceY", -1, 1, 6, 3, 26.65),
    Sketcher.Constraint("DistanceX", -1, 1, 20, 3, 21.225),
])
sketch11.setExpression("Constraints[60]", "Params.sketch11_diameter")
pocket5 = body.newObject("PartDesign::Pocket", "Pocket004")
pocket5.Profile = sketch11
pocket5.setExpression("Length", "Params.pocket5_length")
pocket5.Reversed = True

doc.recompute()
